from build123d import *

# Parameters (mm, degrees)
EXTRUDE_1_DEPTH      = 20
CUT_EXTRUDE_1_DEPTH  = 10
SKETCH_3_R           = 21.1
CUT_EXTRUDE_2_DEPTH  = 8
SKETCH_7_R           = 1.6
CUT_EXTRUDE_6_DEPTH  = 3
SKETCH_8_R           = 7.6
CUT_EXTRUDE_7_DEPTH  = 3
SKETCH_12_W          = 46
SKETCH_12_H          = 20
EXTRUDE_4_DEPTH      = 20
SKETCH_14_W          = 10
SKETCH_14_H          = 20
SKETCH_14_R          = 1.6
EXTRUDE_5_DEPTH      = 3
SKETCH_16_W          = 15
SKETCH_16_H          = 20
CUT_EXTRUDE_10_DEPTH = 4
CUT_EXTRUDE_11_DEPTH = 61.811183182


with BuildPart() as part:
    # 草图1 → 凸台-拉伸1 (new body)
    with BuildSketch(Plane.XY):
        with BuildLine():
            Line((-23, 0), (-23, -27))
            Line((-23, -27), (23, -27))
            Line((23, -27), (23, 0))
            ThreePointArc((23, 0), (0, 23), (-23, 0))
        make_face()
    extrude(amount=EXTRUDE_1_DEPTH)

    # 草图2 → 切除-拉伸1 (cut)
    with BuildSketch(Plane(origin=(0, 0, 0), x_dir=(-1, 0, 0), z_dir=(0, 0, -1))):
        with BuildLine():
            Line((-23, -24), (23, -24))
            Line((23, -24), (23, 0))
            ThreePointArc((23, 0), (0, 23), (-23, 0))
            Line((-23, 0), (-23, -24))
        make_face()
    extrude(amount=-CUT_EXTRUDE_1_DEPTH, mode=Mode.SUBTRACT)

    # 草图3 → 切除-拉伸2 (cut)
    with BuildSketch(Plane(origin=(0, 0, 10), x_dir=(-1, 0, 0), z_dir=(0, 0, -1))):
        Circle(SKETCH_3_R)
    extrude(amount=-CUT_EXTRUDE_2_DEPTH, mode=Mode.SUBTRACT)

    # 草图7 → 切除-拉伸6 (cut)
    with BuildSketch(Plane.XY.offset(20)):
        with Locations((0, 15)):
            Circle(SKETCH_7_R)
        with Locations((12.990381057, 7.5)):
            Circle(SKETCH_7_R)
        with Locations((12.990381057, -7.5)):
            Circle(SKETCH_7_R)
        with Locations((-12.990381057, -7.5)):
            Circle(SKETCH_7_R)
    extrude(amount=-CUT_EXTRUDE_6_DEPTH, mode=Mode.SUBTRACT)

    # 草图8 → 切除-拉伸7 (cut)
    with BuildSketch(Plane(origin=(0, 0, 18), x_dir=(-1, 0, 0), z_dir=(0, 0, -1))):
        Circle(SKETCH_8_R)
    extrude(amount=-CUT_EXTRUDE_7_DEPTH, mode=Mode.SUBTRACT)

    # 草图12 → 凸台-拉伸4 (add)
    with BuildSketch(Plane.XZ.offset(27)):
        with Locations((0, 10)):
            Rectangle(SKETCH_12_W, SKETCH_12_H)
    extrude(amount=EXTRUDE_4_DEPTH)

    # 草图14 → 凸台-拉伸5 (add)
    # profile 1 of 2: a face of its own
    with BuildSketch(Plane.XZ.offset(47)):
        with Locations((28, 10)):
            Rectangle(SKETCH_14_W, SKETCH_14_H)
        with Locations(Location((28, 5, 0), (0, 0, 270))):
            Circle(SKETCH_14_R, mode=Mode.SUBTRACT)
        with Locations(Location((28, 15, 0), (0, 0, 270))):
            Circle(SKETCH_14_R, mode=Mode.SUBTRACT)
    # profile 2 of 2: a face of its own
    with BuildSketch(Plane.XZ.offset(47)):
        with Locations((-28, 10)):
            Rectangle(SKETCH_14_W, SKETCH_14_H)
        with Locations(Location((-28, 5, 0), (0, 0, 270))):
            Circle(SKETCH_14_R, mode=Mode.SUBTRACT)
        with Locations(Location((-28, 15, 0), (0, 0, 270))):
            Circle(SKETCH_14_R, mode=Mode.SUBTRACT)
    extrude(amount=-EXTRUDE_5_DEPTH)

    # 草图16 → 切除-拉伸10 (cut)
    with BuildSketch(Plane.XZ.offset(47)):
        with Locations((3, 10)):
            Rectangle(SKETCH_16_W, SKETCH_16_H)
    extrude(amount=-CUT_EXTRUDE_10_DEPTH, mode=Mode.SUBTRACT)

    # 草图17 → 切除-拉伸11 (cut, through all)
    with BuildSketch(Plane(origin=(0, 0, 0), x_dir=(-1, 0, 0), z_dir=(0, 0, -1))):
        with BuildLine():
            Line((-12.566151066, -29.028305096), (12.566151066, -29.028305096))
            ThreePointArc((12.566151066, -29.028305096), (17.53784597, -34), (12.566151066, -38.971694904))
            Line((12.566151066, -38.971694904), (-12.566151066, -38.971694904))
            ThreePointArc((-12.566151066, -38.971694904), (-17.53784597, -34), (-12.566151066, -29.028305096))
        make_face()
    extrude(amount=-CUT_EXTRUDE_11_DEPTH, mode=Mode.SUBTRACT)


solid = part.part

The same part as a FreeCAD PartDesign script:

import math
import FreeCAD as App
import Part
import Sketcher
Q = App.Units.Quantity

doc = App.newDocument("Part")
body = doc.addObject("PartDesign::Body", "Body")

# Sketch on XY plane
sketch1 = body.newObject("Sketcher::SketchObject", "Sketch")
sketch1.AttachmentSupport = (doc.getObject("XY_Plane"), [""])
sketch1.MapMode = "FlatFace"
sketch1.addGeometry([
    Part.LineSegment(App.Vector(-23, 0, 0), App.Vector(-23, -27, 0)),
    Part.LineSegment(App.Vector(-23, -27, 0), App.Vector(23, -27, 0)),
    Part.LineSegment(App.Vector(23, -27, 0), App.Vector(23, 0, 0)),
    Part.ArcOfCircle(Part.Circle(App.Vector(0, 0, 0), App.Vector(0, 0, 1), 23), math.radians(0), math.radians(180)),
], False)
sketch1.addConstraint([
    Sketcher.Constraint("Coincident", 0, 2, 1, 1),
    Sketcher.Constraint("Coincident", 1, 2, 2, 1),
    Sketcher.Constraint("Tangent", 2, 2, 3, 1),
    Sketcher.Constraint("Tangent", 3, 2, 0, 1),
    Sketcher.Constraint("Vertical", 0),
    Sketcher.Constraint("Horizontal", 1),
    Sketcher.Constraint("Vertical", 2),
    Sketcher.Constraint("Coincident", 3, 3, -1, 1),
    Sketcher.Constraint("Radius", 3, Q("23 mm")),
    Sketcher.Constraint("DistanceY", 0, 2, 0, 1, Q("27 mm")),
])
pad1 = body.newObject("PartDesign::Pad", "Pad")
pad1.Profile = sketch1
pad1.Length = 20

# Sketch on XY plane
sketch2 = body.newObject("Sketcher::SketchObject", "Sketch001")
sketch2.AttachmentSupport = (doc.getObject("XY_Plane"), [""])
sketch2.MapMode = "FlatFace"
sketch2.addGeometry([
    Part.LineSegment(App.Vector(23, -24, 0), App.Vector(-23, -24, 0)),
    Part.LineSegment(App.Vector(-23, -24, 0), App.Vector(-23, 0, 0)),
    Part.ArcOfCircle(Part.Circle(App.Vector(0, 0, 0), App.Vector(0, 0, 1), 23), math.radians(0), math.radians(180)),
    Part.LineSegment(App.Vector(23, 0, 0), App.Vector(23, -24, 0)),
], False)
sketch2.addConstraint([
    Sketcher.Constraint("Coincident", 0, 2, 1, 1),
    Sketcher.Constraint("Tangent", 1, 2, 2, 2),
    Sketcher.Constraint("Tangent", 2, 1, 3, 1),
    Sketcher.Constraint("Coincident", 3, 2, 0, 1),
    Sketcher.Constraint("Horizontal", 0),
    Sketcher.Constraint("Vertical", 1),
    Sketcher.Constraint("Vertical", 3),
    Sketcher.Constraint("Coincident", 2, 3, -1, 1),
    Sketcher.Constraint("Radius", 2, Q("23 mm")),
    Sketcher.Constraint("DistanceY", 1, 1, 1, 2, Q("24 mm")),
])
pocket1 = body.newObject("PartDesign::Pocket", "Pocket")
pocket1.Profile = sketch2
pocket1.Length = 10
pocket1.Reversed = True

# Sketch on XY plane
sketch3 = body.newObject("Sketcher::SketchObject", "Sketch002")
sketch3.AttachmentSupport = (doc.getObject("XY_Plane"), [""])
sketch3.MapMode = "FlatFace"
sketch3.AttachmentOffset = App.Placement(App.Vector(0, 0, 10), App.Rotation())
sketch3.addGeometry(Part.Circle(App.Vector(0, 0, 0), App.Vector(0, 0, 1), 21.1), False)
sketch3.addConstraint([
    Sketcher.Constraint("Coincident", 0, 3, -1, 1),
    Sketcher.Constraint("Diameter", 0, Q("42.2 mm")),
])
pocket2 = body.newObject("PartDesign::Pocket", "Pocket001")
pocket2.Profile = sketch3
pocket2.Length = 8
pocket2.Reversed = True

# Sketch on XY plane
sketch4 = body.newObject("Sketcher::SketchObject", "Sketch003")
sketch4.AttachmentSupport = (doc.getObject("XY_Plane"), [""])
sketch4.MapMode = "FlatFace"
sketch4.AttachmentOffset = App.Placement(App.Vector(0, 0, 20), App.Rotation())
sketch4.addGeometry([
    Part.Circle(App.Vector(0, 15, 0), App.Vector(0, 0, 1), 1.6),
    Part.Circle(App.Vector(12.990381, 7.5, 0), App.Vector(0, 0, 1), 1.6),
    Part.Circle(App.Vector(12.990381, -7.5, 0), App.Vector(0, 0, 1), 1.6),
    Part.Circle(App.Vector(-12.990381, -7.5, 0), App.Vector(0, 0, 1), 1.6),
], False)
sketch4.addConstraint([
    Sketcher.Constraint("Equal", 0, 1),
    Sketcher.Constraint("Equal", 1, 2),
    Sketcher.Constraint("Equal", 2, 3),
    Sketcher.Constraint("Symmetric", 1, 3, 3, 3, -1, 1),
    Sketcher.Constraint("Symmetric", 2, 3, 3, 3, -2),
    Sketcher.Constraint("PointOnObject", 0, 3, -2),
    Sketcher.Constraint("Diameter", 0, Q("3.2 mm")),
    Sketcher.Constraint("DistanceY", -1, 1, 0, 3, Q("15 mm")),
    Sketcher.Constraint("DistanceY", 2, 3, 1, 3, Q("15 mm")),
    Sketcher.Constraint("DistanceX", -1, 1, 1, 3, Q("12.990381 mm")),
])
pocket3 = body.newObject("PartDesign::Pocket", "Pocket002")
pocket3.Profile = sketch4
pocket3.Length = 3

# Sketch on XY plane
sketch5 = body.newObject("Sketcher::SketchObject", "Sketch004")
sketch5.AttachmentSupport = (doc.getObject("XY_Plane"), [""])
sketch5.MapMode = "FlatFace"
sketch5.AttachmentOffset = App.Placement(App.Vector(0, 0, 18), App.Rotation())
sketch5.addGeometry(Part.Circle(App.Vector(0, 0, 0), App.Vector(0, 0, 1), 7.6), False)
sketch5.addConstraint([
    Sketcher.Constraint("Coincident", 0, 3, -1, 1),
    Sketcher.Constraint("Diameter", 0, Q("15.2 mm")),
])
pocket4 = body.newObject("PartDesign::Pocket", "Pocket003")
pocket4.Profile = sketch5
pocket4.Length = 3
pocket4.Reversed = True

# Sketch on XZ plane
sketch6 = body.newObject("Sketcher::SketchObject", "Sketch005")
sketch6.AttachmentSupport = (doc.getObject("XZ_Plane"), [""])
sketch6.MapMode = "FlatFace"
sketch6.AttachmentOffset = App.Placement(App.Vector(0, 0, 27), App.Rotation())
sketch6.addGeometry([
    Part.LineSegment(App.Vector(-23, 20, 0), App.Vector(-23, 0, 0)),
    Part.LineSegment(App.Vector(-23, 0, 0), App.Vector(23, 0, 0)),
    Part.LineSegment(App.Vector(23, 0, 0), App.Vector(23, 20, 0)),
    Part.LineSegment(App.Vector(23, 20, 0), App.Vector(-23, 20, 0)),
], False)
sketch6.addConstraint([
    Sketcher.Constraint("Coincident", 0, 2, 1, 1),
    Sketcher.Constraint("Coincident", 1, 2, 2, 1),
    Sketcher.Constraint("Coincident", 2, 2, 3, 1),
    Sketcher.Constraint("Coincident", 3, 2, 0, 1),
    Sketcher.Constraint("Vertical", 0),
    Sketcher.Constraint("Horizontal", 1),
    Sketcher.Constraint("Vertical", 2),
    Sketcher.Constraint("Horizontal", 3),
    Sketcher.Constraint("Symmetric", 0, 2, 1, 2, -1, 1),
    Sketcher.Constraint("DistanceX", 1, 1, 1, 2, Q("46 mm")),
    Sketcher.Constraint("DistanceY", 0, 2, 0, 1, Q("20 mm")),
])
pad2 = body.newObject("PartDesign::Pad", "Pad001")
pad2.Profile = sketch6
pad2.Length = 20

# Sketch on XZ plane
sketch7 = body.newObject("Sketcher::SketchObject", "Sketch006")
sketch7.AttachmentSupport = (doc.getObject("XZ_Plane"), [""])
sketch7.MapMode = "FlatFace"
sketch7.AttachmentOffset = App.Placement(App.Vector(0, 0, 47), App.Rotation())
sketch7.addGeometry([
    Part.LineSegment(App.Vector(23, 20, 0), App.Vector(23, 0, 0)),  # 0
    Part.LineSegment(App.Vector(23, 0, 0), App.Vector(33, 0, 0)),  # 1
    Part.LineSegment(App.Vector(33, 0, 0), App.Vector(33, 20, 0)),  # 2
    Part.LineSegment(App.Vector(33, 20, 0), App.Vector(23, 20, 0)),  # 3
    Part.Circle(App.Vector(28, 5, 0), App.Vector(0, 0, 1), 1.6),  # 4
    Part.Circle(App.Vector(28, 15, 0), App.Vector(0, 0, 1), 1.6),  # 5
    Part.LineSegment(App.Vector(-33, 20, 0), App.Vector(-33, 0, 0)),  # 6
    Part.LineSegment(App.Vector(-33, 0, 0), App.Vector(-23, 0, 0)),  # 7
    Part.LineSegment(App.Vector(-23, 0, 0), App.Vector(-23, 20, 0)),  # 8
    Part.LineSegment(App.Vector(-23, 20, 0), App.Vector(-33, 20, 0)),  # 9
    Part.Circle(App.Vector(-28, 5, 0), App.Vector(0, 0, 1), 1.6),  # 10
    Part.Circle(App.Vector(-28, 15, 0), App.Vector(0, 0, 1), 1.6),  # 11
], False)
sketch7.addConstraint([
    Sketcher.Constraint("Coincident", 0, 2, 1, 1),
    Sketcher.Constraint("Coincident", 1, 2, 2, 1),
    Sketcher.Constraint("Coincident", 2, 2, 3, 1),
    Sketcher.Constraint("Coincident", 3, 2, 0, 1),
    Sketcher.Constraint("Coincident", 6, 2, 7, 1),
    Sketcher.Constraint("Coincident", 7, 2, 8, 1),
    Sketcher.Constraint("Coincident", 8, 2, 9, 1),
    Sketcher.Constraint("Coincident", 9, 2, 6, 1),
    Sketcher.Constraint("Vertical", 0),
    Sketcher.Constraint("Horizontal", 1),
    Sketcher.Constraint("Vertical", 2),
    Sketcher.Constraint("Horizontal", 3),
    Sketcher.Constraint("Vertical", 6),
    Sketcher.Constraint("Horizontal", 7),
    Sketcher.Constraint("Vertical", 8),
    Sketcher.Constraint("Horizontal", 9),
    Sketcher.Constraint("Equal", 4, 5),
    Sketcher.Constraint("Equal", 5, 10),
    Sketcher.Constraint("Equal", 10, 11),
    Sketcher.Constraint("Symmetric", 1, 2, 6, 2, -1, 1),
    Sketcher.Constraint("Symmetric", 4, 3, 10, 3, -2),
    Sketcher.Constraint("Symmetric", 5, 3, 11, 3, -2),
    Sketcher.Constraint("Symmetric", 0, 2, 7, 2, -2),
    Sketcher.Constraint("Horizontal", 3, 2, 8, 2),
    Sketcher.Constraint("Vertical", 4, 3, 5, 3),
    Sketcher.Constraint("Diameter", 4, Q("3.2 mm")),
    Sketcher.Constraint("DistanceX", 1, 1, 1, 2, Q("10 mm")),
    Sketcher.Constraint("DistanceY", 0, 2, 0, 1, Q("20 mm")),
    Sketcher.Constraint("DistanceX", -1, 1, 4, 3, Q("28 mm")),
    Sketcher.Constraint("DistanceY", -1, 1, 4, 3, Q("5 mm")),
    Sketcher.Constraint("DistanceY", -1, 1, 5, 3, Q("15 mm")),
    Sketcher.Constraint("DistanceX", -1, 1, 0, 2, Q("23 mm")),
])
pad3 = body.newObject("PartDesign::Pad", "Pad002")
pad3.Profile = sketch7
pad3.Length = 3
pad3.Reversed = True

# Sketch on XZ plane
sketch8 = body.newObject("Sketcher::SketchObject", "Sketch007")
sketch8.AttachmentSupport = (doc.getObject("XZ_Plane"), [""])
sketch8.MapMode = "FlatFace"
sketch8.AttachmentOffset = App.Placement(App.Vector(0, 0, 47), App.Rotation())
sketch8.addGeometry([
    Part.LineSegment(App.Vector(-4.5, 20, 0), App.Vector(-4.5, 0, 0)),
    Part.LineSegment(App.Vector(-4.5, 0, 0), App.Vector(10.5, 0, 0)),
    Part.LineSegment(App.Vector(10.5, 0, 0), App.Vector(10.5, 20, 0)),
    Part.LineSegment(App.Vector(10.5, 20, 0), App.Vector(-4.5, 20, 0)),
], False)
sketch8.addConstraint([
    Sketcher.Constraint("Coincident", 0, 2, 1, 1),
    Sketcher.Constraint("Coincident", 1, 2, 2, 1),
    Sketcher.Constraint("Coincident", 2, 2, 3, 1),
    Sketcher.Constraint("Coincident", 3, 2, 0, 1),
    Sketcher.Constraint("Vertical", 0),
    Sketcher.Constraint("Horizontal", 1),
    Sketcher.Constraint("Vertical", 2),
    Sketcher.Constraint("Horizontal", 3),
    Sketcher.Constraint("PointOnObject", 0, 2, -1),
    Sketcher.Constraint("DistanceX", 1, 1, 1, 2, Q("15 mm")),
    Sketcher.Constraint("DistanceY", 0, 2, 0, 1, Q("20 mm")),
    Sketcher.Constraint("DistanceX", 0, 2, -1, 1, Q("4.5 mm")),
])
pocket5 = body.newObject("PartDesign::Pocket", "Pocket004")
pocket5.Profile = sketch8
pocket5.Length = 4

# Sketch on XY plane
sketch9 = body.newObject("Sketcher::SketchObject", "Sketch008")
sketch9.AttachmentSupport = (doc.getObject("XY_Plane"), [""])
sketch9.MapMode = "FlatFace"
sketch9.addGeometry([
    Part.LineSegment(App.Vector(-12.566151, -29.028305, 0), App.Vector(12.566151, -29.028305, 0)),
    Part.ArcOfCircle(Part.Circle(App.Vector(12.566151, -34, 0), App.Vector(0, 0, 1), 4.971695), math.radians(-90), math.radians(90)),
    Part.LineSegment(App.Vector(12.566151, -38.971695, 0), App.Vector(-12.566151, -38.971695, 0)),
    Part.ArcOfCircle(Part.Circle(App.Vector(-12.566151, -34, 0), App.Vector(0, 0, 1), 4.971695), math.radians(90), math.radians(270)),
], False)
sketch9.addConstraint([
    Sketcher.Constraint("Tangent", 0, 2, 1, 2),
    Sketcher.Constraint("Tangent", 1, 1, 2, 1),
    Sketcher.Constraint("Tangent", 2, 2, 3, 2),
    Sketcher.Constraint("Tangent", 3, 1, 0, 1),
    Sketcher.Constraint("Horizontal", 0),
    Sketcher.Constraint("Horizontal", 2),
    Sketcher.Constraint("DistanceY", 1, 3, -1, 1, Q("34 mm")),
    Sketcher.Constraint("Radius", 1, Q("4.971695 mm")),
    Sketcher.Constraint("DistanceX", 0, 1, 0, 2, Q("25.132302 mm")),
    Sketcher.Constraint("DistanceX", -1, 1, 1, 3, Q("12.566151 mm")),
])
pocket6 = body.newObject("PartDesign::Pocket", "Pocket005")
pocket6.Profile = sketch9
pocket6.Type = "ThroughAll"
pocket6.Reversed = True

doc.recompute()
